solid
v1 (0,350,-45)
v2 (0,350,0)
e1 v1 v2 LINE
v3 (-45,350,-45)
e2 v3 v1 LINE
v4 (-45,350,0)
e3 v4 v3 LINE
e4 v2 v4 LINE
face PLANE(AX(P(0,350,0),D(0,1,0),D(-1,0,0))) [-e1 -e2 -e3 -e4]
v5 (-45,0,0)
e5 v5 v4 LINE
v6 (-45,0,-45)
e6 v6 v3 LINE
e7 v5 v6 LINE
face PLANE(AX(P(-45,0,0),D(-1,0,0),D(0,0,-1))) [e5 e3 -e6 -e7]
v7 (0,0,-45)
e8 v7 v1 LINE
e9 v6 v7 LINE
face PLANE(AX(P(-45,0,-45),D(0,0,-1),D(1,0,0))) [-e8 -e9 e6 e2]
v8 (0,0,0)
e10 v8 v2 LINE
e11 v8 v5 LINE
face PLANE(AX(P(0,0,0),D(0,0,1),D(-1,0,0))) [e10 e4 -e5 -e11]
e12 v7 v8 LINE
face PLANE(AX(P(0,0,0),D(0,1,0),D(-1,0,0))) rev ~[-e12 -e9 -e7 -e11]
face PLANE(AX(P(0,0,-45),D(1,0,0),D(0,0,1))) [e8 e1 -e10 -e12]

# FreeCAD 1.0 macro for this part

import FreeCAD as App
import Part
import Sketcher

V = App.Vector
Q = App.Units.Quantity


def add_polygon(sketch, points):
    """Adds a closed chain of lines whose ends are joined by coincident constraints."""
    first, n = sketch.GeometryCount, len(points)
    for a, b in zip(points, points[1:] + points[:1]):
        sketch.addGeometry(Part.LineSegment(App.Vector(*a, 0), App.Vector(*b, 0)), False)
    for i in range(n):
        sketch.addConstraint(Sketcher.Constraint("Coincident", first + i, 2, first + (i + 1) % n, 1))

doc = App.newDocument("Part")
body = doc.addObject("PartDesign::Body", "Body")

# Sketch on XZ plane
sketch1 = body.newObject("Sketcher::SketchObject", "Sketch")
sketch1.AttachmentSupport = (doc.getObject("XZ_Plane"), [""])
sketch1.MapMode = "FlatFace"
add_polygon(sketch1, [(-45, 0), (0, 0), (0, -45), (-45, -45)])  # lines 0-3
sketch1.addConstraint(Sketcher.Constraint("Horizontal", 0))
sketch1.addConstraint(Sketcher.Constraint("Vertical", 1))
sketch1.addConstraint(Sketcher.Constraint("Horizontal", 2))
sketch1.addConstraint(Sketcher.Constraint("Vertical", 3))
sketch1.addConstraint(Sketcher.Constraint("Coincident", 0, 2, -1, 1))
sketch1.addConstraint(Sketcher.Constraint("Equal", 2, 1))
sketch1.addConstraint(Sketcher.Constraint("DistanceX", 0, 1, 0, 2, Q("45 mm")))
pad1 = body.newObject("PartDesign::Pad", "Pad")
pad1.Profile = sketch1
pad1.Length = 350
pad1.Reversed = True

doc.recompute()
